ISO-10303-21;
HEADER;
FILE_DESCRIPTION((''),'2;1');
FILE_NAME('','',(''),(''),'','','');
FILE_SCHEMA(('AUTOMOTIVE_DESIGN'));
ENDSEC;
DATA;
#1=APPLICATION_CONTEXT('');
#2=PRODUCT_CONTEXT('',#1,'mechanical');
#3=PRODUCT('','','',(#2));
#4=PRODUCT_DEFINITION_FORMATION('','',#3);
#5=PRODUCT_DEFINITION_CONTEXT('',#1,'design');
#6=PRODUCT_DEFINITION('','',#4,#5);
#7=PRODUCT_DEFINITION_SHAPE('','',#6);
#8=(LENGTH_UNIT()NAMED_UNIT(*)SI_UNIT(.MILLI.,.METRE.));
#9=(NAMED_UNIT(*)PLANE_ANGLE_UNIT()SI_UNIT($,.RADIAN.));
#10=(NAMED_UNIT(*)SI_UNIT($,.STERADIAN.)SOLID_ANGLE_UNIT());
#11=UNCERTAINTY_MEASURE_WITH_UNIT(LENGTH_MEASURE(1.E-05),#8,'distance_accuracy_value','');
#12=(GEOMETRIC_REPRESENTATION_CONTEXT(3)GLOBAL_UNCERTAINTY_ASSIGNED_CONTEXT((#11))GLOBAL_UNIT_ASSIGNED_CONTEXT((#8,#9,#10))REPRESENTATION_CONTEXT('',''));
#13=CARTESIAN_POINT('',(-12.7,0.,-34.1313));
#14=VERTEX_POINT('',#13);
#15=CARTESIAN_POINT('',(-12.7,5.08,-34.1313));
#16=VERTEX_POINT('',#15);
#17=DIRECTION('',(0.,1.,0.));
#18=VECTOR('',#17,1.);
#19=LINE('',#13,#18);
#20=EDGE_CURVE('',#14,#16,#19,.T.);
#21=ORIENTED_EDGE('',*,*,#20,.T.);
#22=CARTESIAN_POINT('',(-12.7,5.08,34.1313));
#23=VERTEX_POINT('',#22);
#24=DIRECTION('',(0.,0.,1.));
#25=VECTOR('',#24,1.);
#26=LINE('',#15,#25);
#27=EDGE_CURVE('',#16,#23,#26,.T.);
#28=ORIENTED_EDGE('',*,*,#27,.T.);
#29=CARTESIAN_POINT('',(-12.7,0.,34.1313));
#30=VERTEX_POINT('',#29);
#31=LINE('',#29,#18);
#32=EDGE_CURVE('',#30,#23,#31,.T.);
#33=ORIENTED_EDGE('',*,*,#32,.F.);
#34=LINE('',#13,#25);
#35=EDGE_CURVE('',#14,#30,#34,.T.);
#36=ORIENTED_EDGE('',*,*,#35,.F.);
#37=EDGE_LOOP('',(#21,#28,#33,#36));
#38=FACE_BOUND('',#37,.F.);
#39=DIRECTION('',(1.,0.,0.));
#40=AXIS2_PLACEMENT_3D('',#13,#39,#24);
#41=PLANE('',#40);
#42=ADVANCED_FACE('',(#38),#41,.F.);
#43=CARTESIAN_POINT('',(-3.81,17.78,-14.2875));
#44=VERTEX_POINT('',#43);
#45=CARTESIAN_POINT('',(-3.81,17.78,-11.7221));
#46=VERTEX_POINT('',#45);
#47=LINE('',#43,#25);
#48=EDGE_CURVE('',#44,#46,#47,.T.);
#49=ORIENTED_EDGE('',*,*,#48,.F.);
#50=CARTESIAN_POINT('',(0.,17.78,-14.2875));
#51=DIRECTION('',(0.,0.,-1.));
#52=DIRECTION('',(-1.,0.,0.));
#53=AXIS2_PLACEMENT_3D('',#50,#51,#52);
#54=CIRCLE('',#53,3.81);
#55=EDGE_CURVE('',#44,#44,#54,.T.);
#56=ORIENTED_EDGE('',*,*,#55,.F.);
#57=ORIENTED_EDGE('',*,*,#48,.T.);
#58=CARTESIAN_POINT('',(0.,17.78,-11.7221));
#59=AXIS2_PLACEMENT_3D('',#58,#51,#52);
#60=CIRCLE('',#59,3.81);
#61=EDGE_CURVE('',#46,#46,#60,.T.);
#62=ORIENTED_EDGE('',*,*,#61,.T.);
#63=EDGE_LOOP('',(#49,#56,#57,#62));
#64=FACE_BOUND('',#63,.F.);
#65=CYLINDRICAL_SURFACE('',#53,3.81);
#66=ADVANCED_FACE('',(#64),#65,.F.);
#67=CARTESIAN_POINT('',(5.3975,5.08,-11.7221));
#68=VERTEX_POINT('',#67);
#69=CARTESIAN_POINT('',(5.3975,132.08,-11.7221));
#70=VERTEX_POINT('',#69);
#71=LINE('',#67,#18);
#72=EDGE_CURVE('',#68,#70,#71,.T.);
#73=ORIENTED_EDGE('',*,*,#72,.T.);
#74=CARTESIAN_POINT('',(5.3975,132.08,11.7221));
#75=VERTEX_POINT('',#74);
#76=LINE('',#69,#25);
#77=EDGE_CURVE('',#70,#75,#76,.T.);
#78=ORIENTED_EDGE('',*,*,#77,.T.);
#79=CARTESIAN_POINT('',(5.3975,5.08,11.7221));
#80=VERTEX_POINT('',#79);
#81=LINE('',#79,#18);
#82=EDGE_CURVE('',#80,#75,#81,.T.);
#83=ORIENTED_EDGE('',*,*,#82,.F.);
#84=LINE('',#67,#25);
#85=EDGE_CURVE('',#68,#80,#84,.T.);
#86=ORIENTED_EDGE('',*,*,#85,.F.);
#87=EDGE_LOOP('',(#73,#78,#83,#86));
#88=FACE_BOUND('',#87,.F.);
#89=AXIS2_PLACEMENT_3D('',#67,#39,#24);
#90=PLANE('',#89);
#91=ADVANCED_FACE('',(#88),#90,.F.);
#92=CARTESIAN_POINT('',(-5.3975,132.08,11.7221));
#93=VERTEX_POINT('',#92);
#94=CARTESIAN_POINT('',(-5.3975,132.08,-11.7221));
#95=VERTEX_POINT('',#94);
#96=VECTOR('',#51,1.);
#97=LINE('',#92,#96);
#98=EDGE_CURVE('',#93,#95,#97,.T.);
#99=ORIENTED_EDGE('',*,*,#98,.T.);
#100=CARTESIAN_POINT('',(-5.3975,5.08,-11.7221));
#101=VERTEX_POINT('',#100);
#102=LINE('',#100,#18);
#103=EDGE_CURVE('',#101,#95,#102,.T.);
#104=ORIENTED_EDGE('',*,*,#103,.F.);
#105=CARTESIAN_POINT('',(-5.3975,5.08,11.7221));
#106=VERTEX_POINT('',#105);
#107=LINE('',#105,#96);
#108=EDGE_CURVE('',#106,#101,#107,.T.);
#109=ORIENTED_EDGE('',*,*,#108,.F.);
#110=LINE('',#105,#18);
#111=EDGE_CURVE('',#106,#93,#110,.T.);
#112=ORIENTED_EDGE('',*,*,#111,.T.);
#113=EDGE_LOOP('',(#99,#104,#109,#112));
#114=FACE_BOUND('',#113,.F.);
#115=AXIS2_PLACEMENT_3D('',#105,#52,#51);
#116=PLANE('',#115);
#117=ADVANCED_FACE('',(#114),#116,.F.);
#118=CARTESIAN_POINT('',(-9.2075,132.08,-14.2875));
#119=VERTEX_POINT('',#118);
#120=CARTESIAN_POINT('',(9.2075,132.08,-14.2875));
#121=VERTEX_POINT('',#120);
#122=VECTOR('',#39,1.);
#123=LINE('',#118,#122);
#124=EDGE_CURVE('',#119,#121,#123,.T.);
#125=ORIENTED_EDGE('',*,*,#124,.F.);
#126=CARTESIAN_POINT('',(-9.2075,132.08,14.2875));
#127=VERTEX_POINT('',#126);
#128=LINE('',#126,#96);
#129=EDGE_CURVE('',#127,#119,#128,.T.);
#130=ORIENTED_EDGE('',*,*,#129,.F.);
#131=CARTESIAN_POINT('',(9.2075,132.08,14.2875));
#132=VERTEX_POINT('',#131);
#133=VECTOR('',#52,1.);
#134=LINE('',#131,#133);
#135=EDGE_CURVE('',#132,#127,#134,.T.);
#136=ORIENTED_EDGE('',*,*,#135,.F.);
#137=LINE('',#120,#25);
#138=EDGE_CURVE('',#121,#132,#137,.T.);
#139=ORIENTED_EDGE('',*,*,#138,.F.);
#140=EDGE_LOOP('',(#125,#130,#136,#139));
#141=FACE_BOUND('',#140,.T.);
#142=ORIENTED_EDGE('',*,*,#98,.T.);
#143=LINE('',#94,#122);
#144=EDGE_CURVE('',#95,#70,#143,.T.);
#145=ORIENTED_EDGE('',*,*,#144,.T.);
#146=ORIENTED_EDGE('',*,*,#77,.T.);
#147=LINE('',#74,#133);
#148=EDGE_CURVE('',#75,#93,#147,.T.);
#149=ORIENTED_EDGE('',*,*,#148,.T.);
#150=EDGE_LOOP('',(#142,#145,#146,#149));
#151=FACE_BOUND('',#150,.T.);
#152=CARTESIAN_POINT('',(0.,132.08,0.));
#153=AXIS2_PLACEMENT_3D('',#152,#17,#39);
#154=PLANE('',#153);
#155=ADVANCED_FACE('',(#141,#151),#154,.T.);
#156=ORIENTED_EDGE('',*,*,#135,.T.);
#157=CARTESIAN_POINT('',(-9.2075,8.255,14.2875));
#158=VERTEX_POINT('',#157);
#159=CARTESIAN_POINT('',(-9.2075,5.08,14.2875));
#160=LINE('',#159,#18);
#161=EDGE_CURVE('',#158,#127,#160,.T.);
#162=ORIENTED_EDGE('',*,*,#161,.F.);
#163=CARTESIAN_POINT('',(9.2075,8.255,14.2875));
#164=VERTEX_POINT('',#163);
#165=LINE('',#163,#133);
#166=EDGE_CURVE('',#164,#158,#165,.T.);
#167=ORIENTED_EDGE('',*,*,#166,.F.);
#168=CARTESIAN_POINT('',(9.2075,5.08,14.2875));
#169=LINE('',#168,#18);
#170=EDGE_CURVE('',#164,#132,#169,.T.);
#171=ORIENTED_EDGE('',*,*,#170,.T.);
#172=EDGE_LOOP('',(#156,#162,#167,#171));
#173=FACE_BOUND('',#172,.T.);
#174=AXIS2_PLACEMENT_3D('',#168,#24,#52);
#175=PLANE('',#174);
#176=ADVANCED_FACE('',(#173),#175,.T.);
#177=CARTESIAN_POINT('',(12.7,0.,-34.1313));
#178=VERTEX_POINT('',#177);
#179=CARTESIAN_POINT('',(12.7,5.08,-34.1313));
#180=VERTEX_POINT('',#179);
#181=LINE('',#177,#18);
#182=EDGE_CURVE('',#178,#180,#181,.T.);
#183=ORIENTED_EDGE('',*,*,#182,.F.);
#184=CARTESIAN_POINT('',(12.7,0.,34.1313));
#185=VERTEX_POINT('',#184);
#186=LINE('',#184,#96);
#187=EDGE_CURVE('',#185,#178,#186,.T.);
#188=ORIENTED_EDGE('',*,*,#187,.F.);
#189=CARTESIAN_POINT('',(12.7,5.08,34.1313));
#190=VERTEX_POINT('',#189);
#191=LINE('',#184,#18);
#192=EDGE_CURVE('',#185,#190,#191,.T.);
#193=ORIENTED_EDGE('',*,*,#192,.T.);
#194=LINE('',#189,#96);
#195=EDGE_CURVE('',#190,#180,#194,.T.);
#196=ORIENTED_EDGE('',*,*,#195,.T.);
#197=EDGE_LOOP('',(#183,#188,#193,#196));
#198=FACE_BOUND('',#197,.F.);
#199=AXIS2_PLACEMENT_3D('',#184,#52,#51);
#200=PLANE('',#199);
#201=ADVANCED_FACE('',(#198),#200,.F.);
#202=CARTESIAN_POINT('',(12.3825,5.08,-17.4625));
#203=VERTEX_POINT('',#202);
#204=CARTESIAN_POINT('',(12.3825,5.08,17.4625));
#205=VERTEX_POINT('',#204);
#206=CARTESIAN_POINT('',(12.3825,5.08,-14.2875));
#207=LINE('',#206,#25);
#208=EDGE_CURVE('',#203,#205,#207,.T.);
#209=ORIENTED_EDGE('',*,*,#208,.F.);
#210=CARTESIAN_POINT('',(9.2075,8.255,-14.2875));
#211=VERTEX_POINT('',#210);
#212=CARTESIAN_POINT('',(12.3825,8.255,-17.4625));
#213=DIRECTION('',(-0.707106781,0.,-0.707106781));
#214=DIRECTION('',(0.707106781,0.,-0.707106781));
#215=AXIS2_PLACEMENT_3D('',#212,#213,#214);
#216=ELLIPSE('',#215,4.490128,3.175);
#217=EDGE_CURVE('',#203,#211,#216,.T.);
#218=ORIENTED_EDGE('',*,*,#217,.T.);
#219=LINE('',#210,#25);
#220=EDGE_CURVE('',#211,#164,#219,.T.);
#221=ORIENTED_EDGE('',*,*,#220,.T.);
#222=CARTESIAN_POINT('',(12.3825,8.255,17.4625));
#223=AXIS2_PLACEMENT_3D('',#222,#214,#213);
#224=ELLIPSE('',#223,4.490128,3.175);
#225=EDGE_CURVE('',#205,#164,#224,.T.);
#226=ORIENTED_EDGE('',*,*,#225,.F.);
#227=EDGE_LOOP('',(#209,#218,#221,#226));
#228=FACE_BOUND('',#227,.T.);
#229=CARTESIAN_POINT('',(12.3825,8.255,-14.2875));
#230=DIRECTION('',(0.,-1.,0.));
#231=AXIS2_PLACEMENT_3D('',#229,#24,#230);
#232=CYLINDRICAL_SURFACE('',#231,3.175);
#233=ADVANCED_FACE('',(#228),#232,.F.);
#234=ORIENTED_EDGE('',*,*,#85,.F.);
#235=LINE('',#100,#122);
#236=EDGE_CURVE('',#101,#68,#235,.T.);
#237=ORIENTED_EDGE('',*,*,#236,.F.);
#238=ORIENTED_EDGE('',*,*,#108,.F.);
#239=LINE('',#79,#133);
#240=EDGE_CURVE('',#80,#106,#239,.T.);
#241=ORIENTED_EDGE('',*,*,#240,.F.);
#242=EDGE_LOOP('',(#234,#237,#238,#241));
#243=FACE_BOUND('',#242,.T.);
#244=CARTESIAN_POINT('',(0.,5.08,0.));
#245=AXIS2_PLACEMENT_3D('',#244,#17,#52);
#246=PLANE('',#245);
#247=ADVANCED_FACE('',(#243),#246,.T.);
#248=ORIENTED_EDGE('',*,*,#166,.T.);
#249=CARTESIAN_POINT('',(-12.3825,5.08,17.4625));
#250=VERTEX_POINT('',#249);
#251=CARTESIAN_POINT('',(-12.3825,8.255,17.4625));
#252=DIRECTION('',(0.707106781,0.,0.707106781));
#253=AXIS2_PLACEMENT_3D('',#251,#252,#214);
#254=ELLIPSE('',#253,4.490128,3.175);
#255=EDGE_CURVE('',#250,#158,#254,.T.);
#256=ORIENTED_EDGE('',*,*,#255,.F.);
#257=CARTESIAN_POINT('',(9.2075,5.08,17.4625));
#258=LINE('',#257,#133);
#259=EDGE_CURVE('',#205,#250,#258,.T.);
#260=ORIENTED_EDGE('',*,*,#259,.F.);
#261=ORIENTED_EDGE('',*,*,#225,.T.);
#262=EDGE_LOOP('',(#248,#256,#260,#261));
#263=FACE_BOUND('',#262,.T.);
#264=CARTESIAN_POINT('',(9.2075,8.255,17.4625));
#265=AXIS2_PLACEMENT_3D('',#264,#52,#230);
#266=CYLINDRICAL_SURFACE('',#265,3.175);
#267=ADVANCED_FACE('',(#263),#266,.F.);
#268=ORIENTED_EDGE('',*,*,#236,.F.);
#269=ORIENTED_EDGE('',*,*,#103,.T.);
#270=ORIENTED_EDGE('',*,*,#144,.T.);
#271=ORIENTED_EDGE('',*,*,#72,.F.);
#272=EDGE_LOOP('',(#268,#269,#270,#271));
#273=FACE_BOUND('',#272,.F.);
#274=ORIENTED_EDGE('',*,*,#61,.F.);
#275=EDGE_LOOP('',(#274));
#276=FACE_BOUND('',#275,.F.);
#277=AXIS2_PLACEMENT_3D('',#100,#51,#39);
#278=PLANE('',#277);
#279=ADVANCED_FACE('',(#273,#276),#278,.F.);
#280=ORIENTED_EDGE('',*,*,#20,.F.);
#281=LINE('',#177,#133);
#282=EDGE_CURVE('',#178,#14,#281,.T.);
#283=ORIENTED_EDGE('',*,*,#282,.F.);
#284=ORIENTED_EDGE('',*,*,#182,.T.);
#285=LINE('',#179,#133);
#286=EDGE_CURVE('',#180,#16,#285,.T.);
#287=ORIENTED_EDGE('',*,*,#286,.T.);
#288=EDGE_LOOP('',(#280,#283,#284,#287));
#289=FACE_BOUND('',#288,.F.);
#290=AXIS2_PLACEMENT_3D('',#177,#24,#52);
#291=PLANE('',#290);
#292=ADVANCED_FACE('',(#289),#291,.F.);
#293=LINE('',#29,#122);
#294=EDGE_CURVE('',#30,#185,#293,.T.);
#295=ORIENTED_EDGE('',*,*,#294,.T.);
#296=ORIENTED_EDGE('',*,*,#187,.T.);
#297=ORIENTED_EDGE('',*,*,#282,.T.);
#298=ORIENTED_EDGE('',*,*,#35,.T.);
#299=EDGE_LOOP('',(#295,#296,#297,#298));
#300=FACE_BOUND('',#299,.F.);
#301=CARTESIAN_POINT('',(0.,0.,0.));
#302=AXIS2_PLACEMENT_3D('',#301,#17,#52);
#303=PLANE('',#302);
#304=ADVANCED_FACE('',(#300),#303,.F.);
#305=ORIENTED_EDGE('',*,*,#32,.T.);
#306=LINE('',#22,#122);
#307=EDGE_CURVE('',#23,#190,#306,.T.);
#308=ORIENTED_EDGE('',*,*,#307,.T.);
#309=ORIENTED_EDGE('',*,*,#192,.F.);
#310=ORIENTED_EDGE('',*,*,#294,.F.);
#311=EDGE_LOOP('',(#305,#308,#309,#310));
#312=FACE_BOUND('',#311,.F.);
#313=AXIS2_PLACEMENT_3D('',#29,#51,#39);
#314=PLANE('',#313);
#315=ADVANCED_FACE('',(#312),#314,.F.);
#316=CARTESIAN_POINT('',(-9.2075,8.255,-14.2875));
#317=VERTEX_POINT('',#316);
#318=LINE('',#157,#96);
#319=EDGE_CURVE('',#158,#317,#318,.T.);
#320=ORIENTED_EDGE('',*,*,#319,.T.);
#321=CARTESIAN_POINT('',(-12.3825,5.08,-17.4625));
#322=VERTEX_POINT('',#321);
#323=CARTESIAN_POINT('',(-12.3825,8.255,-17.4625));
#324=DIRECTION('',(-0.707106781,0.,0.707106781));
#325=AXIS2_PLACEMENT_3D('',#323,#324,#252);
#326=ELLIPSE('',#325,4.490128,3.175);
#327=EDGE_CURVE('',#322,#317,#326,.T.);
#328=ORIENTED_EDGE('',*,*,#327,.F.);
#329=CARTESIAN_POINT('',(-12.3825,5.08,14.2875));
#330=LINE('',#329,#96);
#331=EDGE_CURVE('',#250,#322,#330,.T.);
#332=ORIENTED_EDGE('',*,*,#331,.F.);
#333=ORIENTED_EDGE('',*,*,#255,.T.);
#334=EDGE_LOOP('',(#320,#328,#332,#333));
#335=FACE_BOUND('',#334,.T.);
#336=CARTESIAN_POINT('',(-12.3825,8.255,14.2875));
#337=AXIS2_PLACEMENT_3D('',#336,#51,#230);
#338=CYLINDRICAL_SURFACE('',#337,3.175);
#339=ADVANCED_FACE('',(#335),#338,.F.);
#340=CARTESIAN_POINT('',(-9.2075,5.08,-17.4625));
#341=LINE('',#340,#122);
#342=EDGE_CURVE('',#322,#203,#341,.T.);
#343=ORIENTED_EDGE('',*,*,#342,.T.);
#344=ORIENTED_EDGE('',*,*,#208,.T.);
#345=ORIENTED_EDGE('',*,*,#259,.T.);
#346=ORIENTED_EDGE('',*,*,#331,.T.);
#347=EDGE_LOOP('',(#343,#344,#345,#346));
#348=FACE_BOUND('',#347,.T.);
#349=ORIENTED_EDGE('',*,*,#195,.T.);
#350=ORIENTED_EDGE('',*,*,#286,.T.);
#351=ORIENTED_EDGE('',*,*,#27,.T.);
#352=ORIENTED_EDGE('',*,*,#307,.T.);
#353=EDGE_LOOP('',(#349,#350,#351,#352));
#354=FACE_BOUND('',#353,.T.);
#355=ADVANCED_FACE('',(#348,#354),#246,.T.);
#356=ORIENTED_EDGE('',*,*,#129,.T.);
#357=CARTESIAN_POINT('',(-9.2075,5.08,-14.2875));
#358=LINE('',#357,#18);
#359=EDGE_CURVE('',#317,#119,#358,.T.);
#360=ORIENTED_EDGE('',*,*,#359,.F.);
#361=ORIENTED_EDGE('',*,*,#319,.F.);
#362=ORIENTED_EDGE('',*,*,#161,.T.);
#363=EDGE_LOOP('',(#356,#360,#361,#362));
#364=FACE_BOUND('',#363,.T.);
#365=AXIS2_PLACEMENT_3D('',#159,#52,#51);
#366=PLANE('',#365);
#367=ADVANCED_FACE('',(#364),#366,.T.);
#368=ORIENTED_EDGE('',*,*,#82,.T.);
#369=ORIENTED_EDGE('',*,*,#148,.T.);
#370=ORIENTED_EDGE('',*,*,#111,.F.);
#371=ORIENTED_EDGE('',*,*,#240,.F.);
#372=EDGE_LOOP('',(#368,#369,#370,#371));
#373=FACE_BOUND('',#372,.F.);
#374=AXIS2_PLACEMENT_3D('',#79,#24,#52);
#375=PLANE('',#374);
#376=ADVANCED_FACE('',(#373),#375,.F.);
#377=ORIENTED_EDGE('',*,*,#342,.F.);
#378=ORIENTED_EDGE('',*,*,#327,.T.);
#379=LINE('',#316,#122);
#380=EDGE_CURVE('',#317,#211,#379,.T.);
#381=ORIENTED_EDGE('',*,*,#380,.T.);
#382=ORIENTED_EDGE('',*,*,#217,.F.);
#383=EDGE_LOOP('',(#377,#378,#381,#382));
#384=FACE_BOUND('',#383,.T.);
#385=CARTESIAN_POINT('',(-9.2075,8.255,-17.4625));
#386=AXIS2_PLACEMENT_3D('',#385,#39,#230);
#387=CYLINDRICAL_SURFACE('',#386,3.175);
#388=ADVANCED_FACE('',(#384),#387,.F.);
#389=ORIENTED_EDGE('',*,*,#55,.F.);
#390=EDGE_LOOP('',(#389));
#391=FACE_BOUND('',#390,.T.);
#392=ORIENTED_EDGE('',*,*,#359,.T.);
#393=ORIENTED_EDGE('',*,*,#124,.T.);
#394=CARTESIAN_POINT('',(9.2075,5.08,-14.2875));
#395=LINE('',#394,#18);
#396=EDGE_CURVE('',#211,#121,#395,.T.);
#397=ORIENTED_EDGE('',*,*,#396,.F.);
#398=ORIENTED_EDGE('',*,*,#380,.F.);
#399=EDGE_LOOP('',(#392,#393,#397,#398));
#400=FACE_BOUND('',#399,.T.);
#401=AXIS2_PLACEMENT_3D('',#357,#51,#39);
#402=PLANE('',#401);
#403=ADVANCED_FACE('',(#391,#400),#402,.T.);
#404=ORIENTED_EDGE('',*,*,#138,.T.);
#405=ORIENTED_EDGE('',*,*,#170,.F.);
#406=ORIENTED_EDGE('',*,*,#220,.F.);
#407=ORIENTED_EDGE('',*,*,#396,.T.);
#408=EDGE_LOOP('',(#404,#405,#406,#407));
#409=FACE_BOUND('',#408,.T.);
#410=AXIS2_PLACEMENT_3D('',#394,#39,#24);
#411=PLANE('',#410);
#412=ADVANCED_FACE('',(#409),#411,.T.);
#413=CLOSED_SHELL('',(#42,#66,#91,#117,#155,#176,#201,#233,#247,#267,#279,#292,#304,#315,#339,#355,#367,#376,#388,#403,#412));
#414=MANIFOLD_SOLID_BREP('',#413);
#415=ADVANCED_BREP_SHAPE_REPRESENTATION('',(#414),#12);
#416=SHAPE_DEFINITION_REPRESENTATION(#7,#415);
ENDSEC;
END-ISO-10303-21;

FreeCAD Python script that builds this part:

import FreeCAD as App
import Part
import Sketcher
Q = App.Units.Quantity


def edges_at(feature, points):
    """Names of the edges that pass closest to the given points."""
    edges = feature.Shape.Edges
    near = lambda p: min(range(len(edges)), key=lambda i: edges[i].distToShape(Part.Vertex(*p))[0])
    return sorted({f"Edge{near(p) + 1}" for p in points})

doc = App.newDocument("Part")
body = doc.addObject("PartDesign::Body", "Body")

# Sketch on XZ plane
sketch1 = body.newObject("Sketcher::SketchObject", "Sketch")
sketch1.AttachmentSupport = (doc.getObject("XZ_Plane"), [""])
sketch1.MapMode = "FlatFace"
sketch1.addGeometry(Part.LineSegment(App.Vector(-13, -34, 0), App.Vector(-13, 34, 0)), False)
sketch1.addGeometry(Part.LineSegment(App.Vector(-13, 34, 0), App.Vector(13, 34, 0)), False)
sketch1.addGeometry(Part.LineSegment(App.Vector(13, 34, 0), App.Vector(13, -34, 0)), False)
sketch1.addGeometry(Part.LineSegment(App.Vector(13, -34, 0), App.Vector(-13, -34, 0)), False)
sketch1.addConstraint(Sketcher.Constraint("Coincident", 0, 2, 1, 1))
sketch1.addConstraint(Sketcher.Constraint("Coincident", 1, 2, 2, 1))
sketch1.addConstraint(Sketcher.Constraint("Coincident", 2, 2, 3, 1))
sketch1.addConstraint(Sketcher.Constraint("Coincident", 3, 2, 0, 1))
sketch1.addConstraint(Sketcher.Constraint("Vertical", 0))
sketch1.addConstraint(Sketcher.Constraint("Horizontal", 1))
sketch1.addConstraint(Sketcher.Constraint("Vertical", 2))
sketch1.addConstraint(Sketcher.Constraint("Horizontal", 3))
sketch1.addConstraint(Sketcher.Constraint("Symmetric", 0, 2, 2, 2, -1, 1))
sketch1.addConstraint(Sketcher.Constraint("DistanceX", 1, 1, 1, 2, Q("1 in")))
sketch1.addConstraint(Sketcher.Constraint("DistanceY", 0, 1, 0, 2, Q("2.6875 in")))
pad1 = body.newObject("PartDesign::Pad", "Pad")
pad1.Profile = sketch1
pad1.Length = Q("0.2 in")
pad1.Reversed = True

# Sketch on XZ plane
sketch2 = body.newObject("Sketcher::SketchObject", "Sketch001")
sketch2.AttachmentSupport = (doc.getObject("XZ_Plane"), [""])
sketch2.MapMode = "FlatFace"
sketch2.AttachmentOffset = App.Placement(App.Vector(0, 0, -0.2 * 25.4), App.Rotation())
sketch2.addGeometry(Part.LineSegment(App.Vector(9, -14, 0), App.Vector(-9, -14, 0)), False)
sketch2.addGeometry(Part.LineSegment(App.Vector(-9, -14, 0), App.Vector(-9, 14, 0)), False)
sketch2.addGeometry(Part.LineSegment(App.Vector(-9, 14, 0), App.Vector(9, 14, 0)), False)
sketch2.addGeometry(Part.LineSegment(App.Vector(9, 14, 0), App.Vector(9, -14, 0)), False)
sketch2.addGeometry(Part.LineSegment(App.Vector(-5, 12, 0), App.Vector(-5, -12, 0)), False)
sketch2.addGeometry(Part.LineSegment(App.Vector(-5, -12, 0), App.Vector(5, -12, 0)), False)
sketch2.addGeometry(Part.LineSegment(App.Vector(5, -12, 0), App.Vector(5, 12, 0)), False)
sketch2.addGeometry(Part.LineSegment(App.Vector(5, 12, 0), App.Vector(-5, 12, 0)), False)
sketch2.addConstraint(Sketcher.Constraint("Coincident", 0, 2, 1, 1))
sketch2.addConstraint(Sketcher.Constraint("Coincident", 1, 2, 2, 1))
sketch2.addConstraint(Sketcher.Constraint("Coincident", 2, 2, 3, 1))
sketch2.addConstraint(Sketcher.Constraint("Coincident", 3, 2, 0, 1))
sketch2.addConstraint(Sketcher.Constraint("Coincident", 4, 2, 5, 1))
sketch2.addConstraint(Sketcher.Constraint("Coincident", 5, 2, 6, 1))
sketch2.addConstraint(Sketcher.Constraint("Coincident", 6, 2, 7, 1))
sketch2.addConstraint(Sketcher.Constraint("Coincident", 7, 2, 4, 1))
sketch2.addConstraint(Sketcher.Constraint("Horizontal", 0))
sketch2.addConstraint(Sketcher.Constraint("Vertical", 1))
sketch2.addConstraint(Sketcher.Constraint("Horizontal", 2))
sketch2.addConstraint(Sketcher.Constraint("Vertical", 3))
sketch2.addConstraint(Sketcher.Constraint("Vertical", 4))
sketch2.addConstraint(Sketcher.Constraint("Horizontal", 5))
sketch2.addConstraint(Sketcher.Constraint("Vertical", 6))
sketch2.addConstraint(Sketcher.Constraint("Horizontal", 7))
sketch2.addConstraint(Sketcher.Constraint("Symmetric", 0, 2, 2, 2, -1, 1))
sketch2.addConstraint(Sketcher.Constraint("Symmetric", 4, 2, 6, 2, -1, 1))
sketch2.addConstraint(Sketcher.Constraint("DistanceX", 0, 2, 0, 1, Q("0.725 in")))
sketch2.addConstraint(Sketcher.Constraint("DistanceX", 5, 1, 5, 2, Q("0.425 in")))
sketch2.addConstraint(Sketcher.Constraint("DistanceY", 1, 1, 1, 2, Q("1.125 in")))
sketch2.addConstraint(Sketcher.Constraint("DistanceY", 4, 2, 4, 1, Q("0.923 in")))
pad2 = body.newObject("PartDesign::Pad", "Pad001")
pad2.Profile = sketch2
pad2.Length = Q("5 in")
pad2.Reversed = True

# Sketch on XY plane
sketch3 = body.newObject("Sketcher::SketchObject", "Sketch002")
sketch3.AttachmentSupport = (doc.getObject("XY_Plane"), [""])
sketch3.MapMode = "FlatFace"
sketch3.AttachmentOffset = App.Placement(App.Vector(0, 0, -0.5625 * 25.4), App.Rotation())
sketch3.addGeometry(Part.Circle(App.Vector(0, 17.8, 0), App.Vector(0, 0, 1), 3.8), False)
sketch3.addConstraint(Sketcher.Constraint("PointOnObject", 0, 3, -2))
sketch3.addConstraint(Sketcher.Constraint("Diameter", 0, Q("0.3 in")))
sketch3.addConstraint(Sketcher.Constraint("DistanceY", -1, 1, 0, 3, Q("0.7 in")))
pocket1 = body.newObject("PartDesign::Pocket", "Pocket")
pocket1.Profile = sketch3
pocket1.Length = Q("0.2 in")
pocket1.Reversed = True
doc.recompute()

fillet = body.newObject("PartDesign::Fillet", "Fillet")
fillet.Base = (pocket1, edges_at(pocket1, [
    (0, 5.08, -14.287),
    (-9.207, 5.08, 0),
    (0, 5.08, 14.287),
    (9.207, 5.08, 0),
]))
fillet.Radius = Q("0.125 in")

doc.recompute()
